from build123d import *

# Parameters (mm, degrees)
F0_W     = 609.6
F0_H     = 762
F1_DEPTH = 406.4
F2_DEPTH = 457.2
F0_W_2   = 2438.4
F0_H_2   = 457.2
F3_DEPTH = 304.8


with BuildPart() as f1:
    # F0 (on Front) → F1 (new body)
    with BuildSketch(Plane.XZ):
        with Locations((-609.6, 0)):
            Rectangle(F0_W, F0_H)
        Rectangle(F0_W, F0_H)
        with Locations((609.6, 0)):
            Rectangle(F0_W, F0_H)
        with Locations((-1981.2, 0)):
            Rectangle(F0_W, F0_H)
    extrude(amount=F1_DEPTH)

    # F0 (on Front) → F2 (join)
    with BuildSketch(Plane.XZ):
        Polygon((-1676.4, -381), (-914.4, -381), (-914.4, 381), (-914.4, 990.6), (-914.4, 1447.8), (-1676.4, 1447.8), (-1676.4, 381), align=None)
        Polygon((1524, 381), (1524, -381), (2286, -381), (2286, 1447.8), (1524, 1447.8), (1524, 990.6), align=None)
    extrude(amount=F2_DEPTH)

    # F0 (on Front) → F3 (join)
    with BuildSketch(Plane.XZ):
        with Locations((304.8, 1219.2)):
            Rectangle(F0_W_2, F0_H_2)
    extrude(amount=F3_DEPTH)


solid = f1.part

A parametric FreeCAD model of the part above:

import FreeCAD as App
import Part
import Sketcher

V = App.Vector
Q = App.Units.Quantity


def add_polygon(sketch, points):
    """Adds a closed chain of lines whose ends are joined by coincident constraints."""
    first, n = sketch.GeometryCount, len(points)
    for a, b in zip(points, points[1:] + points[:1]):
        sketch.addGeometry(Part.LineSegment(App.Vector(*a, 0), App.Vector(*b, 0)), False)
    for i in range(n):
        sketch.addConstraint(Sketcher.Constraint("Coincident", first + i, 2, first + (i + 1) % n, 1))

doc = App.newDocument("Part")
params = doc.addObject("Spreadsheet::Sheet", "Params")
for row, (alias, value) in enumerate([
    ("sketch1_width", "72 in"),
    ("sketch1_width2", "24 in"),
    ("sketch1_height", "30 in"),
    ("pad1_length", "16 in"),
    ("sketch2_width", "30 in"),
    ("sketch2_height", "72 in"),
    ("pad2_length", "18 in"),
    ("sketch3_width", "96 in"),
    ("sketch3_height", "18 in"),
    ("pad3_length", "12 in"),
], start=1):
    params.set(f"A{row}", alias)
    params.set(f"B{row}", "=" + value)
    params.setAlias(f"B{row}", alias)

body = doc.addObject("PartDesign::Body", "Body")
body.AllowCompound = True

sketch1 = body.newObject("Sketcher::SketchObject", "Sketch")
sketch1.AttachmentSupport = (doc.getObject("XZ_Plane"), [""])
sketch1.MapMode = "FlatFace"
add_polygon(sketch1, [(-914, 381), (-914, -381), (914, -381), (914, 381)])
add_polygon(sketch1, [(-2286, 381), (-2286, -381), (-1676, -381), (-1676, 381)])
sketch1.addConstraint([
    Sketcher.Constraint("Vertical", 0),
    Sketcher.Constraint("Horizontal", 1),
    Sketcher.Constraint("Vertical", 2),
    Sketcher.Constraint("Horizontal", 3),
    Sketcher.Constraint("Vertical", 4),
    Sketcher.Constraint("Horizontal", 5),
    Sketcher.Constraint("Vertical", 6),
    Sketcher.Constraint("Horizontal", 7),
    Sketcher.Constraint("Symmetric", 0, 2, 2, 2, -1, 1),
    Sketcher.Constraint("Horizontal", 1, 2, 4, 2),
    Sketcher.Constraint("Horizontal", 3, 2, 6, 2),
    Sketcher.Constraint("DistanceX", 1, 1, 1, 2, Q("72 in")),
    Sketcher.Constraint("DistanceX", 5, 1, 5, 2, Q("24 in")),
    Sketcher.Constraint("DistanceY", 0, 2, 0, 1, Q("30 in")),
    Sketcher.Constraint("DistanceX", 4, 2, -1, 1, Q("90 in")),
])
sketch1.setExpression("Constraints[19]", "Params.sketch1_width")
sketch1.setExpression("Constraints[20]", "Params.sketch1_width2")
sketch1.setExpression("Constraints[21]", "Params.sketch1_height")
pad1 = body.newObject("PartDesign::Pad", "Pad")
pad1.Profile = sketch1
pad1.setExpression("Length", "Params.pad1_length")

sketch2 = body.newObject("Sketcher::SketchObject", "Sketch001")
sketch2.AttachmentSupport = (doc.getObject("XZ_Plane"), [""])
sketch2.MapMode = "FlatFace"
add_polygon(sketch2, [(-1676, -381), (-914, -381), (-914, 1448), (-1676, 1448)])
add_polygon(sketch2, [(1524, -381), (2286, -381), (2286, 1448), (1524, 1448)])
sketch2.addConstraint([
    Sketcher.Constraint("Horizontal", 0),
    Sketcher.Constraint("Vertical", 1),
    Sketcher.Constraint("Horizontal", 2),
    Sketcher.Constraint("Vertical", 3),
    Sketcher.Constraint("Horizontal", 4),
    Sketcher.Constraint("Vertical", 5),
    Sketcher.Constraint("Horizontal", 6),
    Sketcher.Constraint("Vertical", 7),
    Sketcher.Constraint("Horizontal", 3, 2, 4, 2),
    Sketcher.Constraint("Horizontal", 2, 2, 5, 2),
    Sketcher.Constraint("Equal", 2, 4),
    Sketcher.Constraint("DistanceX", 0, 1, 0, 2, Q("30 in")),
    Sketcher.Constraint("DistanceY", 1, 1, 1, 2, Q("72 in")),
    Sketcher.Constraint("DistanceX", 0, 2, -1, 1, Q("36 in")),
    Sketcher.Constraint("DistanceY", 0, 2, -1, 1, Q("15 in")),
    Sketcher.Constraint("DistanceX", -1, 1, 4, 2, Q("90 in")),
])
sketch2.setExpression("Constraints[19]", "Params.sketch2_width")
sketch2.setExpression("Constraints[20]", "Params.sketch2_height")
pad2 = body.newObject("PartDesign::Pad", "Pad001")
pad2.Profile = sketch2
pad2.setExpression("Length", "Params.pad2_length")

sketch3 = body.newObject("Sketcher::SketchObject", "Sketch002")
sketch3.AttachmentSupport = (doc.getObject("XZ_Plane"), [""])
sketch3.MapMode = "FlatFace"
add_polygon(sketch3, [(-914, 1448), (-914, 991), (1524, 991), (1524, 1448)])
sketch3.addConstraint([
    Sketcher.Constraint("Vertical", 0),
    Sketcher.Constraint("Horizontal", 1),
    Sketcher.Constraint("Vertical", 2),
    Sketcher.Constraint("Horizontal", 3),
    Sketcher.Constraint("DistanceX", 1, 1, 1, 2, Q("96 in")),
    Sketcher.Constraint("DistanceY", 0, 2, 0, 1, Q("18 in")),
    Sketcher.Constraint("DistanceX", 0, 2, -1, 1, Q("36 in")),
    Sketcher.Constraint("DistanceY", -1, 1, 0, 2, Q("39 in")),
])
sketch3.setExpression("Constraints[8]", "Params.sketch3_width")
sketch3.setExpression("Constraints[9]", "Params.sketch3_height")
pad3 = body.newObject("PartDesign::Pad", "Pad002")
pad3.Profile = sketch3
pad3.setExpression("Length", "Params.pad3_length")

doc.recompute()
